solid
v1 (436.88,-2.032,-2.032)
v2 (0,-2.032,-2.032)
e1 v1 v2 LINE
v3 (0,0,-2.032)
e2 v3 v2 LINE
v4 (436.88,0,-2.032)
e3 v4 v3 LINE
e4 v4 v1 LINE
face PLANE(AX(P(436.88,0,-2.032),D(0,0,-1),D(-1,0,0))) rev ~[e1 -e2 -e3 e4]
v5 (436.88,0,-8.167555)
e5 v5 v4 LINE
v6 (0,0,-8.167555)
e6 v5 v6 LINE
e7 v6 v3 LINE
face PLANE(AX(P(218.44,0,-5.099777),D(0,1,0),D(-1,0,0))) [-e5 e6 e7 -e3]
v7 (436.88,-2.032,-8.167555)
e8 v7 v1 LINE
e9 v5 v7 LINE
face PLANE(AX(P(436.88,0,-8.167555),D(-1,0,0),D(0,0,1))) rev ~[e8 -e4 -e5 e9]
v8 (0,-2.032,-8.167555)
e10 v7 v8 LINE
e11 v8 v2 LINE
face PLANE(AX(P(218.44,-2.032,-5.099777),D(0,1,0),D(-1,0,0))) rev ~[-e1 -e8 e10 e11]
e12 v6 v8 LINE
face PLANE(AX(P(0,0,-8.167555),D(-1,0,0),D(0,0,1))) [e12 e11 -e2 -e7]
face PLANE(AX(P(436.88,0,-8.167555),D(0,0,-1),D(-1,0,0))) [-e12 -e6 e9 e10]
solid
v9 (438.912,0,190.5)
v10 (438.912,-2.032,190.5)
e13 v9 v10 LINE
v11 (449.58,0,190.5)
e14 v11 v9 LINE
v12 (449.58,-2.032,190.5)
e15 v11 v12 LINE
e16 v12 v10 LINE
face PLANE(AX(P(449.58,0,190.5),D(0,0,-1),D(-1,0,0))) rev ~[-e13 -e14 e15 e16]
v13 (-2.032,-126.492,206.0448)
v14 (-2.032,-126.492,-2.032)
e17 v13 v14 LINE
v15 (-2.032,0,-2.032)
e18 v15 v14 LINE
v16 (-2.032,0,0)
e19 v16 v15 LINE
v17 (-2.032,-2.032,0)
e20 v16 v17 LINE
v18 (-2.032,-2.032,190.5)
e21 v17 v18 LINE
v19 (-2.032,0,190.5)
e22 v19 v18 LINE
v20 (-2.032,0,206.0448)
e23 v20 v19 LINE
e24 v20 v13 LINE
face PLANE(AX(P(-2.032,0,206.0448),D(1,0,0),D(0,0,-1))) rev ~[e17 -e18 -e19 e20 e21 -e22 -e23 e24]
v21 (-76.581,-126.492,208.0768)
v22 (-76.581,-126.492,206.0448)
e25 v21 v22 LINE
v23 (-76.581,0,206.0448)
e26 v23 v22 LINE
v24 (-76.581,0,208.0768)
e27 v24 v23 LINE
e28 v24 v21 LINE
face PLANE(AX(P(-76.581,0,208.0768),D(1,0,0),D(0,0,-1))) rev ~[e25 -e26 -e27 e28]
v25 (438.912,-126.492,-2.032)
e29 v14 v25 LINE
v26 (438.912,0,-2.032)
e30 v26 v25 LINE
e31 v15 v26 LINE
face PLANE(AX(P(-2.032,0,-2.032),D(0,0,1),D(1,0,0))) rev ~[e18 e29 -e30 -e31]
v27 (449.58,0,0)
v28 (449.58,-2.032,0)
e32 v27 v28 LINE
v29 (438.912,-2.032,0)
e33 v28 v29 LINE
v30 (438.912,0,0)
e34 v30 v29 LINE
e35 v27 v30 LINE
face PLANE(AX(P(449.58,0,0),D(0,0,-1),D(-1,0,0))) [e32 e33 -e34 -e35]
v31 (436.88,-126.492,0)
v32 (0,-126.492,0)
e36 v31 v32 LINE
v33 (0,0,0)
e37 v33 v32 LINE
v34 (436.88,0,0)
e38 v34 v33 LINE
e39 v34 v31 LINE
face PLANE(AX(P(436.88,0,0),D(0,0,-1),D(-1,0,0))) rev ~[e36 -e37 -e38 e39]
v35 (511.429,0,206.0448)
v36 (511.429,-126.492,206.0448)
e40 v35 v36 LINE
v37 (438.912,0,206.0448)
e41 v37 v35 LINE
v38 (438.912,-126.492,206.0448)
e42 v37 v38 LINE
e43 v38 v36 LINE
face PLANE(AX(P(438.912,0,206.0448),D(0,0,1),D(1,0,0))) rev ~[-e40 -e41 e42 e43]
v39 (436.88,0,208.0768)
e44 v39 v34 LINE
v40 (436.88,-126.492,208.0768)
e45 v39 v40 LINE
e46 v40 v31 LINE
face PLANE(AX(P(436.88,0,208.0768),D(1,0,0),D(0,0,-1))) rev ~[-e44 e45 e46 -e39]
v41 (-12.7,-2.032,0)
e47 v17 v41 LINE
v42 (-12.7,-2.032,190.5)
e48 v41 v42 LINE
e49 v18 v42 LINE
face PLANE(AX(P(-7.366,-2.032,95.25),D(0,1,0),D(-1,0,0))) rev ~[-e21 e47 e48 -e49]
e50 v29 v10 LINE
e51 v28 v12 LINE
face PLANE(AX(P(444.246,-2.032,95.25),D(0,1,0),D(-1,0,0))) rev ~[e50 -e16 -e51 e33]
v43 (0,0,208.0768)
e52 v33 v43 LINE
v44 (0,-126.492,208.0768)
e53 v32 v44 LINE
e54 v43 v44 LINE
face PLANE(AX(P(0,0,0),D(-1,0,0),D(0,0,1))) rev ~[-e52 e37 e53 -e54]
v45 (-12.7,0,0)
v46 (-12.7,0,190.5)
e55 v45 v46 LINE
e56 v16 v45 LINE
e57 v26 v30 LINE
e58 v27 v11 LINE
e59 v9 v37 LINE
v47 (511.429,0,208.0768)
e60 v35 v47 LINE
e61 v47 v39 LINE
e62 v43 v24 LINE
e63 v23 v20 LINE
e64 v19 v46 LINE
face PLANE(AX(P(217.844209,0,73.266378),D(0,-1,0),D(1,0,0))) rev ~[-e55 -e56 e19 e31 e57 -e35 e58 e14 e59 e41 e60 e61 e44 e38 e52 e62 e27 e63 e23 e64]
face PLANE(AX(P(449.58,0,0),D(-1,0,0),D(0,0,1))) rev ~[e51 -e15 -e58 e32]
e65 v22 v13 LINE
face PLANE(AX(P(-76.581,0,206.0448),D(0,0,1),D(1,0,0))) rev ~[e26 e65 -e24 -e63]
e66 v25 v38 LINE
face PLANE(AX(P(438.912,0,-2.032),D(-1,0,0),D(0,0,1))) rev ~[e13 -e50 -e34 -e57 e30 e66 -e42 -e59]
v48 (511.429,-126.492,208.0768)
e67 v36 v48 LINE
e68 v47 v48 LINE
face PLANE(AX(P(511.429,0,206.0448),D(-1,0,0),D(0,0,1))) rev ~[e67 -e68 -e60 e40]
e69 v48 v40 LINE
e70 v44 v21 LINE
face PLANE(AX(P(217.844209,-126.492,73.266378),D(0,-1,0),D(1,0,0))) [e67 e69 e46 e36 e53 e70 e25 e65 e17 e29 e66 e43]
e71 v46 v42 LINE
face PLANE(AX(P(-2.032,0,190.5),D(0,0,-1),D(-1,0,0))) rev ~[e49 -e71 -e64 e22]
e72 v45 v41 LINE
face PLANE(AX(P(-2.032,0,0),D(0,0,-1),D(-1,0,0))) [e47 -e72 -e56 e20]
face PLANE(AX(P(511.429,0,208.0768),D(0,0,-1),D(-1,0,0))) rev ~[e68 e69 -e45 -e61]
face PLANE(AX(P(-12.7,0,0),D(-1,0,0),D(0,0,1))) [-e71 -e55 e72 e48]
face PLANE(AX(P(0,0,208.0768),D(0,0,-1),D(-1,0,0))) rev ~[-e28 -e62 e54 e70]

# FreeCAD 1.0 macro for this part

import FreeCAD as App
import Part
import Sketcher
Q = App.Units.Quantity

doc = App.newDocument("Part")
body = doc.addObject("PartDesign::Body", "Body")

# Sketch on XZ plane
sketch1 = body.newObject("Sketcher::SketchObject", "Sketch")
sketch1.AttachmentSupport = (doc.getObject("XZ_Plane"), [""])
sketch1.MapMode = "FlatFace"
sketch1.addGeometry([
    Part.LineSegment(App.Vector(436.88, 0, 0), App.Vector(0, 0, 0)),  # 0
    Part.LineSegment(App.Vector(0, 0, 0), App.Vector(0, 208.0768, 0)),  # 1
    Part.LineSegment(App.Vector(0, 208.0768, 0), App.Vector(-76.581, 208.0768, 0)),  # 2
    Part.LineSegment(App.Vector(-76.581, 208.0768, 0), App.Vector(-76.581, 206.0448, 0)),  # 3
    Part.LineSegment(App.Vector(-76.581, 206.0448, 0), App.Vector(-2.032, 206.0448, 0)),  # 4
    Part.LineSegment(App.Vector(-2.032, 206.0448, 0), App.Vector(-2.032, -2.032, 0)),  # 5
    Part.LineSegment(App.Vector(-2.032, -2.032, 0), App.Vector(438.912, -2.032, 0)),  # 6
    Part.LineSegment(App.Vector(438.912, -2.032, 0), App.Vector(438.912, 206.0448, 0)),  # 7
    Part.LineSegment(App.Vector(438.912, 206.0448, 0), App.Vector(511.429, 206.0448, 0)),  # 8
    Part.LineSegment(App.Vector(511.429, 206.0448, 0), App.Vector(511.429, 208.0768, 0)),  # 9
    Part.LineSegment(App.Vector(511.429, 208.0768, 0), App.Vector(436.88, 208.0768, 0)),  # 10
    Part.LineSegment(App.Vector(436.88, 208.0768, 0), App.Vector(436.88, 0, 0)),  # 11
], False)
sketch1.addConstraint([
    Sketcher.Constraint("Coincident", 0, 2, 1, 1),
    Sketcher.Constraint("Coincident", 1, 2, 2, 1),
    Sketcher.Constraint("Coincident", 2, 2, 3, 1),
    Sketcher.Constraint("Coincident", 3, 2, 4, 1),
    Sketcher.Constraint("Coincident", 4, 2, 5, 1),
    Sketcher.Constraint("Coincident", 5, 2, 6, 1),
    Sketcher.Constraint("Coincident", 6, 2, 7, 1),
    Sketcher.Constraint("Coincident", 7, 2, 8, 1),
    Sketcher.Constraint("Coincident", 8, 2, 9, 1),
    Sketcher.Constraint("Coincident", 9, 2, 10, 1),
    Sketcher.Constraint("Coincident", 10, 2, 11, 1),
    Sketcher.Constraint("Coincident", 11, 2, 0, 1),
    Sketcher.Constraint("Horizontal", 0),
    Sketcher.Constraint("Vertical", 1),
    Sketcher.Constraint("Horizontal", 2),
    Sketcher.Constraint("Vertical", 3),
    Sketcher.Constraint("Horizontal", 4),
    Sketcher.Constraint("Vertical", 5),
    Sketcher.Constraint("Horizontal", 6),
    Sketcher.Constraint("Vertical", 7),
    Sketcher.Constraint("Horizontal", 8),
    Sketcher.Constraint("Vertical", 9),
    Sketcher.Constraint("Horizontal", 10),
    Sketcher.Constraint("Vertical", 11),
    Sketcher.Constraint("Coincident", 0, 2, -1, 1),
    Sketcher.Constraint("Horizontal", 4, 2, 7, 2),
    Sketcher.Constraint("Horizontal", 2, 2, 9, 2),
    Sketcher.Constraint("Equal", 4, 10),
    Sketcher.Constraint("Equal", 1, 5),
    Sketcher.Constraint("DistanceX", 0, 2, 0, 1, Q("17.2 in")),
    Sketcher.Constraint("DistanceX", 6, 1, 6, 2, Q("17.36 in")),
    Sketcher.Constraint("DistanceY", 3, 2, 3, 1, Q("0.08 in")),
    Sketcher.Constraint("DistanceX", 2, 2, 2, 1, Q("3.015 in")),
    Sketcher.Constraint("DistanceX", 4, 1, 4, 2, Q("2.935 in")),
    Sketcher.Constraint("DistanceY", 1, 1, 1, 2, Q("8.192 in")),
])
pad1 = body.newObject("PartDesign::Pad", "Pad")
pad1.Profile = sketch1
pad1.Length = Q("4.98 in")

# Sketch on XZ plane
sketch2 = body.newObject("Sketcher::SketchObject", "Sketch001")
sketch2.AttachmentSupport = (doc.getObject("XZ_Plane"), [""])
sketch2.MapMode = "FlatFace"
sketch2.addGeometry([
    Part.LineSegment(App.Vector(-2.032, 190.5, 0), App.Vector(-2.032, 0, 0)),  # 0
    Part.LineSegment(App.Vector(-2.032, 0, 0), App.Vector(-12.7, 0, 0)),  # 1
    Part.LineSegment(App.Vector(-12.7, 0, 0), App.Vector(-12.7, 190.5, 0)),  # 2
    Part.LineSegment(App.Vector(-12.7, 190.5, 0), App.Vector(-2.032, 190.5, 0)),  # 3
    Part.LineSegment(App.Vector(449.58, 190.5, 0), App.Vector(449.58, 0, 0)),  # 4
    Part.LineSegment(App.Vector(449.58, 0, 0), App.Vector(438.912, 0, 0)),  # 5
    Part.LineSegment(App.Vector(438.912, 0, 0), App.Vector(438.912, 190.5, 0)),  # 6
    Part.LineSegment(App.Vector(438.912, 190.5, 0), App.Vector(449.58, 190.5, 0)),  # 7
], False)
sketch2.addConstraint([
    Sketcher.Constraint("Coincident", 0, 2, 1, 1),
    Sketcher.Constraint("Coincident", 1, 2, 2, 1),
    Sketcher.Constraint("Coincident", 2, 2, 3, 1),
    Sketcher.Constraint("Coincident", 3, 2, 0, 1),
    Sketcher.Constraint("Coincident", 4, 2, 5, 1),
    Sketcher.Constraint("Coincident", 5, 2, 6, 1),
    Sketcher.Constraint("Coincident", 6, 2, 7, 1),
    Sketcher.Constraint("Coincident", 7, 2, 4, 1),
    Sketcher.Constraint("Vertical", 0),
    Sketcher.Constraint("Horizontal", 1),
    Sketcher.Constraint("Vertical", 2),
    Sketcher.Constraint("Horizontal", 3),
    Sketcher.Constraint("Vertical", 4),
    Sketcher.Constraint("Horizontal", 5),
    Sketcher.Constraint("Vertical", 6),
    Sketcher.Constraint("Horizontal", 7),
    Sketcher.Constraint("PointOnObject", 0, 2, -1),
    Sketcher.Constraint("PointOnObject", 4, 2, -1),
    Sketcher.Constraint("Horizontal", 3, 2, 6, 2),
    Sketcher.Constraint("Equal", 3, 5),
    Sketcher.Constraint("DistanceY", 0, 2, 0, 1, Q("7.5 in")),
    Sketcher.Constraint("DistanceX", 1, 2, 1, 1, Q("0.42 in")),
    Sketcher.Constraint("DistanceX", 1, 2, -1, 1, Q("0.5 in")),
    Sketcher.Constraint("DistanceX", -1, 1, 4, 2, Q("17.7 in")),
])
pad2 = body.newObject("PartDesign::Pad", "Pad001")
pad2.Profile = sketch2
pad2.Length = Q("0.08 in")
body2 = doc.addObject("PartDesign::Body", "Body001")

# Sketch on XZ plane
sketch3 = body2.newObject("Sketcher::SketchObject", "Sketch002")
sketch3.AttachmentSupport = (doc.getObject("XZ_Plane001"), [""])
sketch3.MapMode = "FlatFace"
sketch3.addGeometry([
    Part.LineSegment(App.Vector(436.88, -2.032, 0), App.Vector(436.88, -8.167555, 0)),
    Part.LineSegment(App.Vector(436.88, -8.167555, 0), App.Vector(0, -8.167555, 0)),
    Part.LineSegment(App.Vector(0, -8.167555, 0), App.Vector(0, -2.032, 0)),
    Part.LineSegment(App.Vector(0, -2.032, 0), App.Vector(436.88, -2.032, 0)),
], False)
sketch3.addConstraint([
    Sketcher.Constraint("Coincident", 0, 2, 1, 1),
    Sketcher.Constraint("Coincident", 1, 2, 2, 1),
    Sketcher.Constraint("Coincident", 2, 2, 3, 1),
    Sketcher.Constraint("Coincident", 3, 2, 0, 1),
    Sketcher.Constraint("Vertical", 0),
    Sketcher.Constraint("Horizontal", 1),
    Sketcher.Constraint("Vertical", 2),
    Sketcher.Constraint("Horizontal", 3),
    Sketcher.Constraint("PointOnObject", 1, 2, -2),
    Sketcher.Constraint("DistanceX", 1, 2, 1, 1, Q("17.2 in")),
    Sketcher.Constraint("DistanceY", 2, 2, -1, 1, Q("0.08 in")),
    Sketcher.Constraint("DistanceY", 0, 2, 0, 1, 6.135555),
])
pad3 = body2.newObject("PartDesign::Pad", "Pad002")
pad3.Profile = sketch3
pad3.Length = Q("0.08 in")

doc.recompute()
